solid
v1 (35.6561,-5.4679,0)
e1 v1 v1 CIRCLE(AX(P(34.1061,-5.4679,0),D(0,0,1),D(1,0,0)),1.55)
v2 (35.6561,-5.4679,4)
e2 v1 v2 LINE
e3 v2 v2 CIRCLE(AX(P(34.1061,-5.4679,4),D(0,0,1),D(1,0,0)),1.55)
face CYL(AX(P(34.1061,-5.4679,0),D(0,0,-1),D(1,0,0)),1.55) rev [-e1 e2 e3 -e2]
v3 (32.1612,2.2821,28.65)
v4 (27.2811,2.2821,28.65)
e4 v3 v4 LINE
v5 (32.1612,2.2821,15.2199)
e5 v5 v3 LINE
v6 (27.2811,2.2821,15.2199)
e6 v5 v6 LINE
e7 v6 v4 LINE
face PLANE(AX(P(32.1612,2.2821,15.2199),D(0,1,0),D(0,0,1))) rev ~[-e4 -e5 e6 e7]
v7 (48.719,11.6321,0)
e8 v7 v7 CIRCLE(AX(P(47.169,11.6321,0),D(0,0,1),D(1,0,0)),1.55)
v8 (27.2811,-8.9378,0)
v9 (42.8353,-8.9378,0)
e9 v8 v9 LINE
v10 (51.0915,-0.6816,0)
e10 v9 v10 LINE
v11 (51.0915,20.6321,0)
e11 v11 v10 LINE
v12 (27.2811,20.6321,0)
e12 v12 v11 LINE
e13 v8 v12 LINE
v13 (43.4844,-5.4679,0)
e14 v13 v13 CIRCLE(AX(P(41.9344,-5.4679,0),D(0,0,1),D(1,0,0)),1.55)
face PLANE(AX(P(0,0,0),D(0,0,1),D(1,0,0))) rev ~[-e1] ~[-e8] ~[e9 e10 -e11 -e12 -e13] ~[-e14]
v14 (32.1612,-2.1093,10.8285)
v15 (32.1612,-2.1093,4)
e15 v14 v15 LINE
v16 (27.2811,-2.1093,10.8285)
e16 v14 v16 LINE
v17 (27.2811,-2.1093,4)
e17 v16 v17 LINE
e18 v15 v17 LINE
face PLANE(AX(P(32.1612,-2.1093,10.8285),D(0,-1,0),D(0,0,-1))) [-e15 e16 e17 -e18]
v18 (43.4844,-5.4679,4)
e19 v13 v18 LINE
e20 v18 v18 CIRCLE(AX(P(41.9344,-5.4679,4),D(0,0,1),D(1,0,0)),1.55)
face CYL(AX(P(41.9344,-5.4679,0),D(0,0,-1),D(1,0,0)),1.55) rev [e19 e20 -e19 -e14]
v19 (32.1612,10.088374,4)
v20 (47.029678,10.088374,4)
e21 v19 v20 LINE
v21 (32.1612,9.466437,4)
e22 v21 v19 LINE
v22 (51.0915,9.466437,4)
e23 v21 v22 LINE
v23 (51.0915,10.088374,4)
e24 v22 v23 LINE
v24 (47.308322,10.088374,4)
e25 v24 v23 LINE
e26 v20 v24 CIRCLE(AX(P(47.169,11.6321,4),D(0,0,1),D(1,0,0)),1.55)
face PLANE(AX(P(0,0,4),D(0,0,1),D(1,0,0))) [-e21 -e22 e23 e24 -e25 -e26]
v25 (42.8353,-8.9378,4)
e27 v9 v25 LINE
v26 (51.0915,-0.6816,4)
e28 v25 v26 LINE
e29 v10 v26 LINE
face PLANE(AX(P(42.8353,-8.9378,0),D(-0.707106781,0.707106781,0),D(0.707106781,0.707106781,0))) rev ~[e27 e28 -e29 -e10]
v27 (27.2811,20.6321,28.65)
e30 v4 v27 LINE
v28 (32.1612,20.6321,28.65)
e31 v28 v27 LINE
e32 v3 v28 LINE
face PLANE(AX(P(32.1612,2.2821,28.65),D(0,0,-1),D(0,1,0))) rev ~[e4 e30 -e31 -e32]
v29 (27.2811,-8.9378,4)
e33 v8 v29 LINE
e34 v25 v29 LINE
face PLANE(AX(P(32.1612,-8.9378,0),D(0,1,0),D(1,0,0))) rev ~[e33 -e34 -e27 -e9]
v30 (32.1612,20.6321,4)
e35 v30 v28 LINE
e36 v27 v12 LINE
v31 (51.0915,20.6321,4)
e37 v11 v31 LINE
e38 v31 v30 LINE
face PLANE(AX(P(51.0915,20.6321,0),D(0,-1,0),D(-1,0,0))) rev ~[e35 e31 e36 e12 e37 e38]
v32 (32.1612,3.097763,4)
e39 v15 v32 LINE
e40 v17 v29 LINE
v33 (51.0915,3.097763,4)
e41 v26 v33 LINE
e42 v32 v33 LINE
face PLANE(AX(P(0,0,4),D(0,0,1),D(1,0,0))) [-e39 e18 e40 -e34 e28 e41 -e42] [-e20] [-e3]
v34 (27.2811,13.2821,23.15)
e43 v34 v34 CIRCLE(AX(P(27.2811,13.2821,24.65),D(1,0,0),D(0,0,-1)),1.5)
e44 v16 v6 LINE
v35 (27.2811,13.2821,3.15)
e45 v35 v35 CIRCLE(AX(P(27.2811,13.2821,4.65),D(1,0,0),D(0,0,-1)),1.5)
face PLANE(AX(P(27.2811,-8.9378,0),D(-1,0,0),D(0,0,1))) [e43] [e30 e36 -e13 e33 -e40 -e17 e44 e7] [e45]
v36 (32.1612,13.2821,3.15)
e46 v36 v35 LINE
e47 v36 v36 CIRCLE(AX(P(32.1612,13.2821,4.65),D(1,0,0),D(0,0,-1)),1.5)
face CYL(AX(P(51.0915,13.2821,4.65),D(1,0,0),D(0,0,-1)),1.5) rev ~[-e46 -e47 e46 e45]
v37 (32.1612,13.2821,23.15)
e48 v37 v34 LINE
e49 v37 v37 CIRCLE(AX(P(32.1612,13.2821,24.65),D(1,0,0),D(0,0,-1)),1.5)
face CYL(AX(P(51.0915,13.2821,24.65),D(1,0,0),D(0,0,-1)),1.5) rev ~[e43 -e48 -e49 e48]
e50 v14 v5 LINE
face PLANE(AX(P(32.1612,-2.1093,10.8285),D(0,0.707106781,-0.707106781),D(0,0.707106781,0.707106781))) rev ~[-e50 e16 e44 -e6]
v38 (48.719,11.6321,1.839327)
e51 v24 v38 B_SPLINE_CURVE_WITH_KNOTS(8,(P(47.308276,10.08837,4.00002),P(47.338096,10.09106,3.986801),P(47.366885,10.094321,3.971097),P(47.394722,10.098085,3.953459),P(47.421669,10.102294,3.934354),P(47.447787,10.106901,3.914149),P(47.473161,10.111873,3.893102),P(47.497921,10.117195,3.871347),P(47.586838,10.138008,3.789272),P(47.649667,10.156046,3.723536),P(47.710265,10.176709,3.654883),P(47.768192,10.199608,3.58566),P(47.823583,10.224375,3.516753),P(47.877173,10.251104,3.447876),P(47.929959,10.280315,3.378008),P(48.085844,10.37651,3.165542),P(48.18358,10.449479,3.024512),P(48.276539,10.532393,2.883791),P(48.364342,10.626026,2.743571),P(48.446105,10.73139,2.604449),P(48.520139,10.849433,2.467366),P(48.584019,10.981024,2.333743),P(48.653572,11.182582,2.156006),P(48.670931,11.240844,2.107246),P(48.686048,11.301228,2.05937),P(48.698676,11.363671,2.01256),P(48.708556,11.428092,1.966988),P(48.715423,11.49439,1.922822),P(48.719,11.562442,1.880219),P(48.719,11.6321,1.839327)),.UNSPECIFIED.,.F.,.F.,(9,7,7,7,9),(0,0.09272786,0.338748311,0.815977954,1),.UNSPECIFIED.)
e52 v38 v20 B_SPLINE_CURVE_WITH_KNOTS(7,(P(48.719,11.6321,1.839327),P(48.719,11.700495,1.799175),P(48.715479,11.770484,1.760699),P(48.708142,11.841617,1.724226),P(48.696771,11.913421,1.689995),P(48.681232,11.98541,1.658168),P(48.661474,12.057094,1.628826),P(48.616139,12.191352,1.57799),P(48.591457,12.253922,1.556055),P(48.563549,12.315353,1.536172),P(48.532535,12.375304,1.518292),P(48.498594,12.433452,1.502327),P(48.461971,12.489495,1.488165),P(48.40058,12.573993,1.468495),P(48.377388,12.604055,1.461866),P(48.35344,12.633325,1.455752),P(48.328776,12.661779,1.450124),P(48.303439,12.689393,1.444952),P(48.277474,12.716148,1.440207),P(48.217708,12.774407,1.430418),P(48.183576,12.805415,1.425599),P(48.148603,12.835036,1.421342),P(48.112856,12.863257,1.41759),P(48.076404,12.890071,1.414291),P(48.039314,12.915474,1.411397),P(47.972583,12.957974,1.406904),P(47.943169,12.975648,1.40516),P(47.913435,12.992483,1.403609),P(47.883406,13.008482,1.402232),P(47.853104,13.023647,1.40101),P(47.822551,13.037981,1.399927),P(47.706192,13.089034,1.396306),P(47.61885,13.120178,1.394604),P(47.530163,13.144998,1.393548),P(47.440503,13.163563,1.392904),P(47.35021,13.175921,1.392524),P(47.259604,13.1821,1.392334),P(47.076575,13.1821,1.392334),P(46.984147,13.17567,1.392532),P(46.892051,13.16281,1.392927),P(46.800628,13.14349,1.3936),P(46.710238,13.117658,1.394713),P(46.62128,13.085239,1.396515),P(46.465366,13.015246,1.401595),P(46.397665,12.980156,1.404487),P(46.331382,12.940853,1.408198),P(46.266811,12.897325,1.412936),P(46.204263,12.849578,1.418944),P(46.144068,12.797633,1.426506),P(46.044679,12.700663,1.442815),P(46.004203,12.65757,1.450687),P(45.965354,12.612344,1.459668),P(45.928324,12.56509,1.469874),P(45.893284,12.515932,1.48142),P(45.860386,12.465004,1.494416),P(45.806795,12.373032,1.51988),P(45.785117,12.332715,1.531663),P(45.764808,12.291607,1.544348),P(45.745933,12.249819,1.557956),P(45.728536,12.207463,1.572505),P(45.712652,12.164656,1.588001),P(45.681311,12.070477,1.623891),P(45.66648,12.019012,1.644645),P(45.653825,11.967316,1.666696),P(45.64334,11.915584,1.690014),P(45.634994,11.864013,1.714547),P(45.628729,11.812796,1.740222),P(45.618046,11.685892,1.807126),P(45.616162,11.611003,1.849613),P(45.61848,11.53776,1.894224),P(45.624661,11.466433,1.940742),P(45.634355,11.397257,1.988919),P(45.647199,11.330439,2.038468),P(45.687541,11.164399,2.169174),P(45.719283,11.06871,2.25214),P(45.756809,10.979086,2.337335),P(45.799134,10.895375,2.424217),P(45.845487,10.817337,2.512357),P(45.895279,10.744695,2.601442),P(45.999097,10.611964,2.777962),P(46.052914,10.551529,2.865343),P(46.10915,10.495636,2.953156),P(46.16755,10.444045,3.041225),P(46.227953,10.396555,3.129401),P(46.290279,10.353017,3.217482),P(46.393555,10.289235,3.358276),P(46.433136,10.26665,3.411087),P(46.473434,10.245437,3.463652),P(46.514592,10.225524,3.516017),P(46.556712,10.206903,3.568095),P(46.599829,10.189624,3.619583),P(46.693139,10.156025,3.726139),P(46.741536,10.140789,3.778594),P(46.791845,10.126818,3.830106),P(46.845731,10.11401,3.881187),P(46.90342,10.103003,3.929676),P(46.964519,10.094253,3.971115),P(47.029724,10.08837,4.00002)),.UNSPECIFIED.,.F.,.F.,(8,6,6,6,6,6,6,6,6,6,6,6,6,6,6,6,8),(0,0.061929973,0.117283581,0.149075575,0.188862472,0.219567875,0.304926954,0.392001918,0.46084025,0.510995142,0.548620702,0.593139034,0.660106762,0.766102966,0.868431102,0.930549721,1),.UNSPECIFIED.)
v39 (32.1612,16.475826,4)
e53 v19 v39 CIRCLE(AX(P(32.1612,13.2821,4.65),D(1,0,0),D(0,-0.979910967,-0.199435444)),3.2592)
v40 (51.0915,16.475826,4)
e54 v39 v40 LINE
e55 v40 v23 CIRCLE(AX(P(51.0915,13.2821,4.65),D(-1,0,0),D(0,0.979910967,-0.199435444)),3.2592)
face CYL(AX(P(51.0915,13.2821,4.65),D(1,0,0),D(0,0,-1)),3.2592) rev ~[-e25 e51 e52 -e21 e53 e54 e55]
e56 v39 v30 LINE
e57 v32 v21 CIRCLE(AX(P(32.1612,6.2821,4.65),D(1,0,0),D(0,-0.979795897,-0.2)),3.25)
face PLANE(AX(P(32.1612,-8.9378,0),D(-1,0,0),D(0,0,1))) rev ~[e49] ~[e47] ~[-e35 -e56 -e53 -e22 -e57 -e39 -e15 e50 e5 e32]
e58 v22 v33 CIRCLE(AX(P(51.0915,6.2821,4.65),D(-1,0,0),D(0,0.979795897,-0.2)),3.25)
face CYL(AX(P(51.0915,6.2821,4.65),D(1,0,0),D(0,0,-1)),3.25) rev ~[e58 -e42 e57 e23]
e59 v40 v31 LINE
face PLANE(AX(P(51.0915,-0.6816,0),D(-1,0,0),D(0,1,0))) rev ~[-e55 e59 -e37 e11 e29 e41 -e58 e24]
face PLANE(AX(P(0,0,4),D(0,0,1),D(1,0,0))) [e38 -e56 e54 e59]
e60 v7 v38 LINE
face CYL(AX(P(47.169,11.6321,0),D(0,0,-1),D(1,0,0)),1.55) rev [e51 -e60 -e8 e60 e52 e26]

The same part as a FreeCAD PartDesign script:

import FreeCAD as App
import Part
import Sketcher
from FreeCAD import Vector
Q = App.Units.Quantity


def add_polygon(sketch, points):
    """Adds a closed chain of lines whose ends are joined by coincident constraints."""
    first, n = sketch.GeometryCount, len(points)
    for a, b in zip(points, points[1:] + points[:1]):
        sketch.addGeometry(Part.LineSegment(App.Vector(*a, 0), App.Vector(*b, 0)), False)
    for i in range(n):
        sketch.addConstraint(Sketcher.Constraint("Coincident", first + i, 2, first + (i + 1) % n, 1))

doc = App.newDocument("Part")
body = doc.addObject("PartDesign::Body", "Body")

# Sketch on XY plane
sketch1 = body.newObject("Sketcher::SketchObject", "Sketch")
sketch1.AttachmentSupport = (doc.getObject("XY_Plane"), [""])
sketch1.MapMode = "FlatFace"
add_polygon(sketch1, [(32.2, -8.9), (42.8, -8.9), (51.1, -0.7), (51.1, 20.6), (32.2, 20.6)])  # lines 0-4
sketch1.addGeometry(Part.Circle(Vector(34.1, -5.5, 0), Vector(0, 0, 1), 1.6), False)  # 5
sketch1.addGeometry(Part.Circle(Vector(41.9, -5.5, 0), Vector(0, 0, 1), 1.6), False)  # 6
sketch1.addGeometry(Part.Circle(Vector(47.2, 11.6, 0), Vector(0, 0, 1), 1.6), False)  # 7
sketch1.addConstraint(Sketcher.Constraint("Horizontal", 0))
sketch1.addConstraint(Sketcher.Constraint("Vertical", 2))
sketch1.addConstraint(Sketcher.Constraint("Horizontal", 3))
sketch1.addConstraint(Sketcher.Constraint("Vertical", 4))
sketch1.addConstraint(Sketcher.Constraint("Equal", 5, 6))
sketch1.addConstraint(Sketcher.Constraint("Equal", 6, 7))
sketch1.addConstraint(Sketcher.Constraint("Horizontal", 5, 3, 6, 3))
sketch1.addConstraint(Sketcher.Constraint("Diameter", 5, 3.1))
sketch1.addConstraint(Sketcher.Constraint("Angle", 1, Q("45 deg")))
sketch1.addConstraint(Sketcher.Constraint("DistanceY", 7, 3, 2, 2, 9.0))
sketch1.addConstraint(Sketcher.Constraint("DistanceY", 4, 2, 4, 1, 29.57))
sketch1.addConstraint(Sketcher.Constraint("DistanceY", 6, 3, 7, 3, 17.1))
sketch1.addConstraint(Sketcher.Constraint("DistanceX", 0, 1, 0, 2, 10.674))
sketch1.addConstraint(Sketcher.Constraint("Distance", 1, 11.676))
sketch1.addConstraint(Sketcher.Constraint("DistanceX", -1, 1, 5, 3, 34.106))
sketch1.addConstraint(Sketcher.Constraint("DistanceY", 5, 3, -1, 1, 5.468))
sketch1.addConstraint(Sketcher.Constraint("DistanceX", -1, 1, 7, 3, 47.169))
sketch1.addConstraint(Sketcher.Constraint("DistanceX", 6, 3, 0, 2, 0.901))
sketch1.addConstraint(Sketcher.Constraint("DistanceX", 3, 2, 5, 3, 1.945))
pad1 = body.newObject("PartDesign::Pad", "Pad")
pad1.Profile = sketch1
pad1.Length = 4

# Sketch on YZ plane
sketch2 = body.newObject("Sketcher::SketchObject", "Sketch001")
sketch2.AttachmentSupport = (doc.getObject("YZ_Plane"), [""])
sketch2.MapMode = "FlatFace"
sketch2.AttachmentOffset = App.Placement(Vector(0, 0, 32.1612), App.Rotation())
add_polygon(sketch2, [(-8.9, 0), (-8.9, 4), (-2.1, 4), (-2.1, 10.8), (2.3, 15.2), (2.3, 28.6), (20.6, 28.6), (20.6, 0)])  # lines 0-7
sketch2.addConstraint(Sketcher.Constraint("Vertical", 0))
sketch2.addConstraint(Sketcher.Constraint("Horizontal", 1))
sketch2.addConstraint(Sketcher.Constraint("Vertical", 2))
sketch2.addConstraint(Sketcher.Constraint("Vertical", 4))
sketch2.addConstraint(Sketcher.Constraint("Horizontal", 5))
sketch2.addConstraint(Sketcher.Constraint("Vertical", 6))
sketch2.addConstraint(Sketcher.Constraint("Horizontal", 7))
sketch2.addConstraint(Sketcher.Constraint("PointOnObject", 6, 2, -1))
sketch2.addConstraint(Sketcher.Constraint("Equal", 1, 2))
sketch2.addConstraint(Sketcher.Constraint("Angle", 3, Q("45 deg")))
sketch2.addConstraint(Sketcher.Constraint("DistanceY", 0, 1, 0, 2, 4.0))
sketch2.addConstraint(Sketcher.Constraint("DistanceX", 5, 1, 5, 2, 18.35))
sketch2.addConstraint(Sketcher.Constraint("DistanceX", 7, 2, 7, 1, 29.57))
sketch2.addConstraint(Sketcher.Constraint("DistanceY", 4, 1, 4, 2, 13.43))
sketch2.addConstraint(Sketcher.Constraint("DistanceX", 1, 1, 1, 2, 6.8285))
sketch2.addConstraint(Sketcher.Constraint("DistanceX", -1, 1, 3, 2, 2.282))
pad2 = body.newObject("PartDesign::Pad", "Pad001")
pad2.Profile = sketch2
pad2.Length = 4.8801
pad2.Reversed = True

# Sketch on YZ plane
sketch3 = body.newObject("Sketcher::SketchObject", "Sketch002")
sketch3.AttachmentSupport = (doc.getObject("YZ_Plane"), [""])
sketch3.MapMode = "FlatFace"
sketch3.AttachmentOffset = App.Placement(Vector(0, 0, 51.0915), App.Rotation())
sketch3.addGeometry(Part.Circle(Vector(13.2821, 24.65, 0), Vector(0, 0, 1), 1.5), False)
sketch3.addGeometry(Part.Circle(Vector(13.2821, 4.65, 0), Vector(0, 0, 1), 1.5), False)
sketch3.addGeometry(Part.Ellipse(Vector(-140.098, 3.05, 0), Vector(-138.909, 4.65, 0), Vector(-140.098, 4.65, 0)), False)
sketch3.addGeometry(Part.Ellipse(Vector(-140.098, 23.05, 0), Vector(-138.909, 24.65, 0), Vector(-140.098, 24.65, 0)), False)
sketch3.addConstraint(Sketcher.Constraint("Block", 2))
sketch3.addConstraint(Sketcher.Constraint("Block", 3))
sketch3.addConstraint(Sketcher.Constraint("Equal", 0, 1))
sketch3.addConstraint(Sketcher.Constraint("Vertical", 0, 3, 1, 3))
sketch3.addConstraint(Sketcher.Constraint("Diameter", 0, 3.0))
sketch3.addConstraint(Sketcher.Constraint("DistanceY", 1, 3, 0, 3, 20.0))
sketch3.addConstraint(Sketcher.Constraint("DistanceY", -1, 1, 0, 3, 24.65))
sketch3.addConstraint(Sketcher.Constraint("DistanceX", -1, 1, 0, 3, 13.282))
pocket1 = body.newObject("PartDesign::Pocket", "Pocket")
pocket1.Profile = sketch3
pocket1.Type = "ThroughAll"

# Sketch on YZ plane
sketch4 = body.newObject("Sketcher::SketchObject", "Sketch003")
sketch4.AttachmentSupport = (doc.getObject("YZ_Plane"), [""])
sketch4.MapMode = "FlatFace"
sketch4.AttachmentOffset = App.Placement(Vector(0, 0, 51.0915), App.Rotation())
sketch4.addGeometry(Part.Circle(Vector(6.3, 4.7, 0), Vector(0, 0, 1), 3.2), False)
sketch4.addGeometry(Part.Circle(Vector(13.3, 4.7, 0), Vector(0, 0, 1), 3.3), False)
sketch4.addConstraint(Sketcher.Constraint("Horizontal", 0, 3, 1, 3))
sketch4.addConstraint(Sketcher.Constraint("Diameter", 0, 6.5))
sketch4.addConstraint(Sketcher.Constraint("DistanceX", 0, 3, 1, 3, 7.0))
sketch4.addConstraint(Sketcher.Constraint("Diameter", 1, 6.5184))
sketch4.addConstraint(Sketcher.Constraint("DistanceY", -1, 1, 0, 3, 4.65))
sketch4.addConstraint(Sketcher.Constraint("DistanceX", -1, 1, 0, 3, 6.282))
pocket2 = body.newObject("PartDesign::Pocket", "Pocket001")
pocket2.Profile = sketch4
pocket2.Length = 18.9303

doc.recompute()
